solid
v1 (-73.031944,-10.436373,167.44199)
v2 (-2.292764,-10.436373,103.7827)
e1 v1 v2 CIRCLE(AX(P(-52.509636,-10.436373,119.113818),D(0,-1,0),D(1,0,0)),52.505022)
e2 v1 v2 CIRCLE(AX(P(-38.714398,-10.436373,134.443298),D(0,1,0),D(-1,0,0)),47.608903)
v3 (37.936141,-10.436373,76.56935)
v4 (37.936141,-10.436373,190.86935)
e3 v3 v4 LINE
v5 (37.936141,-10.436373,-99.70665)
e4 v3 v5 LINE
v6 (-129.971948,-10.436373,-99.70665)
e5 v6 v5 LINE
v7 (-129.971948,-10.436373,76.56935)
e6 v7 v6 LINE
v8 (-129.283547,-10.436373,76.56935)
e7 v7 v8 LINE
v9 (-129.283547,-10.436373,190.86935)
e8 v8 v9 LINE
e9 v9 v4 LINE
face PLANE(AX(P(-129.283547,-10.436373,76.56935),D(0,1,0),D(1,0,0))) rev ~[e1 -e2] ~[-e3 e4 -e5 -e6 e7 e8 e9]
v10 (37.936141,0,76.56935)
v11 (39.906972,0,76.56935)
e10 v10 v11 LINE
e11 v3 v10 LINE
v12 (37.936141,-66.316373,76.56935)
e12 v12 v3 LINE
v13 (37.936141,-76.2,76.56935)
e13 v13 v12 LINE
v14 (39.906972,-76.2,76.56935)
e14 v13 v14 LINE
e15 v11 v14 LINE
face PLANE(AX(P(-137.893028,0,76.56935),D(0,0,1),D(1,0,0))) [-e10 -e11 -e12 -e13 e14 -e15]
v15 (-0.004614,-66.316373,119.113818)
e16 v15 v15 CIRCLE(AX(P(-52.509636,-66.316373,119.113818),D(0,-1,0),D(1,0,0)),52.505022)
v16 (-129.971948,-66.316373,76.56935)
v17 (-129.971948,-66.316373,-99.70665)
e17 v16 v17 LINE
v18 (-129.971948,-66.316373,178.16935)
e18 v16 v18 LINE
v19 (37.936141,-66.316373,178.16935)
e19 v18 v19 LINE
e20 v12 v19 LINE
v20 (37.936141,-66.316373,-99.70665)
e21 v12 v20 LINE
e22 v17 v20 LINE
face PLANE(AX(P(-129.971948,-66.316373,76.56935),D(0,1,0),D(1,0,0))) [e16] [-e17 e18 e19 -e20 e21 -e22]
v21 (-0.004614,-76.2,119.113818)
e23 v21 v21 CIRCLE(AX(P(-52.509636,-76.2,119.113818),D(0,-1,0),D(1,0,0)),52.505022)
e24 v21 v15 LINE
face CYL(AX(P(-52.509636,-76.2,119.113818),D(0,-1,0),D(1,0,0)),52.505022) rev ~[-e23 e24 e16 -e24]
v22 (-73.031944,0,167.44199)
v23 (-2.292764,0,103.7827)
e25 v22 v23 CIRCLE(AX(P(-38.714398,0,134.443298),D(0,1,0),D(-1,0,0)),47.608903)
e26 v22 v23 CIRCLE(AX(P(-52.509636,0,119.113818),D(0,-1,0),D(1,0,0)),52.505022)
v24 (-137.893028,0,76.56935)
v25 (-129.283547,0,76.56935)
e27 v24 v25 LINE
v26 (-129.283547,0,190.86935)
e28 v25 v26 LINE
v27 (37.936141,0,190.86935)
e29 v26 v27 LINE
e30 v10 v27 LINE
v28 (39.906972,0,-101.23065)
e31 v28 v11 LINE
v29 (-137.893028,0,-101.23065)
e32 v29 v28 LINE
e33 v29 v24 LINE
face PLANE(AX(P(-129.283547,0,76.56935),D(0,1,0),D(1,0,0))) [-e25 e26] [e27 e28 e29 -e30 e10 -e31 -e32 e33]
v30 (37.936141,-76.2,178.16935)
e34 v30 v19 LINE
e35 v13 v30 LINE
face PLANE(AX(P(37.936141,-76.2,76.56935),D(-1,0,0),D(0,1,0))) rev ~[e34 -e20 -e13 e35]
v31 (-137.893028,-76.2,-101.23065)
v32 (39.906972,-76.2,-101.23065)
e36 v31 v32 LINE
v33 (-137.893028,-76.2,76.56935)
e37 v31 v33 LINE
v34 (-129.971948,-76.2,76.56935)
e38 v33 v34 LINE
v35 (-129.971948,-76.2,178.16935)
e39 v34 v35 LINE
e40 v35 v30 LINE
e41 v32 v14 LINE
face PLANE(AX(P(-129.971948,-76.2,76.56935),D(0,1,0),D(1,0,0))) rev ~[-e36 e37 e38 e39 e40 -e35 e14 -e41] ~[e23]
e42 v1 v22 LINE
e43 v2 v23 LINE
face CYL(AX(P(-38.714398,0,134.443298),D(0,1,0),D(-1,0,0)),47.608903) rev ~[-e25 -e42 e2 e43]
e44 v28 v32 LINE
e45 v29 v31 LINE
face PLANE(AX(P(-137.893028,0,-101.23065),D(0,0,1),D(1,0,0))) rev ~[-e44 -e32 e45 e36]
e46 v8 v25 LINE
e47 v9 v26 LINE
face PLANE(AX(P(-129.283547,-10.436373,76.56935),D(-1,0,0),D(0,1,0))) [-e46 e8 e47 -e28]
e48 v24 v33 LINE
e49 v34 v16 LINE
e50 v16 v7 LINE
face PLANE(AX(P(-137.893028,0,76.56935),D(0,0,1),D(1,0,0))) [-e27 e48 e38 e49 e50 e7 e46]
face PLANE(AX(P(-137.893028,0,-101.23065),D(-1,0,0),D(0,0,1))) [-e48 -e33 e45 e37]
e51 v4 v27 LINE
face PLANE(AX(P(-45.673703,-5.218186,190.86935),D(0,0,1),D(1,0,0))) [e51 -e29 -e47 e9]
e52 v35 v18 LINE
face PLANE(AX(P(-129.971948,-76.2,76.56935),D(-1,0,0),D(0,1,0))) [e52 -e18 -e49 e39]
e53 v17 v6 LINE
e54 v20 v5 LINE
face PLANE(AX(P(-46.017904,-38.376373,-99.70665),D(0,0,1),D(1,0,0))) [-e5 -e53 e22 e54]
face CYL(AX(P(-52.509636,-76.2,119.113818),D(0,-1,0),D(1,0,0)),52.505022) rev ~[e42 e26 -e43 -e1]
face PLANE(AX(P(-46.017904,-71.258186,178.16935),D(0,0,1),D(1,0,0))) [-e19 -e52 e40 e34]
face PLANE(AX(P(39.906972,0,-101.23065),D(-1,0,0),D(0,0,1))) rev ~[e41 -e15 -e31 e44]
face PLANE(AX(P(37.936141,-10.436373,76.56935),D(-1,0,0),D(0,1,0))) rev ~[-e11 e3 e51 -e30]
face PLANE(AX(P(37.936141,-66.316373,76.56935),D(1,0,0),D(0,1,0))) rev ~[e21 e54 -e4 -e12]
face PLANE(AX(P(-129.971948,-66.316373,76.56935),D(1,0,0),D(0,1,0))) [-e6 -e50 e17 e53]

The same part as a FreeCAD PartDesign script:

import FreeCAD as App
import Part
import Sketcher

V = App.Vector
Q = App.Units.Quantity

doc = App.newDocument("Part")
body = doc.addObject("PartDesign::Body", "Body")

# Sketch on XZ plane
sketch1 = doc.addObject("Sketcher::SketchObject", "Sketch")
body.addObject(sketch1)
sketch1.AttachmentSupport = (doc.XZ_Plane, [""])
sketch1.MapMode = "FlatFace"
sketch1.addGeometry([
    Part.LineSegment(V(-137.893028, 76.56935, 0), V(-137.893028, -101.23065, 0)),
    Part.LineSegment(V(-137.893028, -101.23065, 0), V(39.906972, -101.23065, 0)),
    Part.LineSegment(V(39.906972, -101.23065, 0), V(39.906972, 76.56935, 0)),
    Part.LineSegment(V(39.906972, 76.56935, 0), V(-137.893028, 76.56935, 0)),
], False)
sketch1.addConstraint([
    Sketcher.Constraint("Coincident", 0, 2, 1, 1),
    Sketcher.Constraint("Coincident", 1, 2, 2, 1),
    Sketcher.Constraint("Coincident", 2, 2, 3, 1),
    Sketcher.Constraint("Coincident", 3, 2, 0, 1),
    Sketcher.Constraint("Vertical", 0),
    Sketcher.Constraint("Horizontal", 1),
    Sketcher.Constraint("Vertical", 2),
    Sketcher.Constraint("Horizontal", 3),
    Sketcher.Constraint("Equal", 3, 0),
    Sketcher.Constraint("DistanceX", 1, 1, 1, 2, Q("7 in")),
    Sketcher.Constraint("DistanceX", 0, 2, -1, 1, Q("137.893028 mm")),
    Sketcher.Constraint("DistanceY", 0, 2, -1, 1, Q("101.23065 mm")),
])
pad1 = doc.addObject("PartDesign::Pad", "Pad")
body.addObject(pad1)
pad1.Profile = sketch1
pad1.Length = Q("3 in")

# Sketch on XY plane
sketch2 = doc.addObject("Sketcher::SketchObject", "Sketch001")
body.addObject(sketch2)
sketch2.AttachmentSupport = (doc.XY_Plane, [""])
sketch2.MapMode = "FlatFace"
sketch2.AttachmentOffset = App.Placement(V(0, 0, 76.56935), App.Rotation())
sketch2.addGeometry([
    Part.LineSegment(V(-129.971948, -10.436373, 0), V(-129.971948, -66.316373, 0)),
    Part.LineSegment(V(-129.971948, -66.316373, 0), V(37.936141, -66.316373, 0)),
    Part.LineSegment(V(37.936141, -66.316373, 0), V(37.936141, -10.436373, 0)),
    Part.LineSegment(V(37.936141, -10.436373, 0), V(-129.971948, -10.436373, 0)),
], False)
sketch2.addConstraint([
    Sketcher.Constraint("Coincident", 0, 2, 1, 1),
    Sketcher.Constraint("Coincident", 1, 2, 2, 1),
    Sketcher.Constraint("Coincident", 2, 2, 3, 1),
    Sketcher.Constraint("Coincident", 3, 2, 0, 1),
    Sketcher.Constraint("Vertical", 0),
    Sketcher.Constraint("Horizontal", 1),
    Sketcher.Constraint("Vertical", 2),
    Sketcher.Constraint("Horizontal", 3),
    Sketcher.Constraint("DistanceY", 0, 2, 0, 1, Q("2.2 in")),
    Sketcher.Constraint("DistanceX", 1, 1, 1, 2, Q("167.908089 mm")),
    Sketcher.Constraint("DistanceX", 0, 2, -1, 1, Q("129.971948 mm")),
    Sketcher.Constraint("DistanceY", 0, 2, -1, 1, Q("66.316373 mm")),
])
pocket1 = doc.addObject("PartDesign::Pocket", "Pocket")
body.addObject(pocket1)
pocket1.Profile = sketch2
pocket1.Length = Q("6.94 in")

# Sketch on XY plane
sketch3 = doc.addObject("Sketcher::SketchObject", "Sketch002")
body.addObject(sketch3)
sketch3.AttachmentSupport = (doc.XY_Plane, [""])
sketch3.MapMode = "FlatFace"
sketch3.AttachmentOffset = App.Placement(V(0, 0, 76.56935), App.Rotation())
sketch3.addGeometry([
    Part.LineSegment(V(-129.971948, -66.316373, 0), V(-129.971948, -76.2, 0)),
    Part.LineSegment(V(-129.971948, -76.2, 0), V(37.936141, -76.2, 0)),
    Part.LineSegment(V(37.936141, -76.2, 0), V(37.936141, -66.316373, 0)),
    Part.LineSegment(V(37.936141, -66.316373, 0), V(-129.971948, -66.316373, 0)),
], False)
sketch3.addConstraint([
    Sketcher.Constraint("Coincident", 0, 2, 1, 1),
    Sketcher.Constraint("Coincident", 1, 2, 2, 1),
    Sketcher.Constraint("Coincident", 2, 2, 3, 1),
    Sketcher.Constraint("Coincident", 3, 2, 0, 1),
    Sketcher.Constraint("Vertical", 0),
    Sketcher.Constraint("Horizontal", 1),
    Sketcher.Constraint("Vertical", 2),
    Sketcher.Constraint("Horizontal", 3),
    Sketcher.Constraint("DistanceY", 0, 2, -1, 1, Q("3 in")),
    Sketcher.Constraint("DistanceX", 1, 1, 1, 2, Q("167.908089 mm")),
    Sketcher.Constraint("DistanceY", 0, 2, 0, 1, Q("9.883627 mm")),
    Sketcher.Constraint("DistanceX", 0, 2, -1, 1, Q("129.971948 mm")),
])
pad2 = doc.addObject("PartDesign::Pad", "Pad001")
body.addObject(pad2)
pad2.Profile = sketch3
pad2.Length = Q("4 in")

# Sketch on XY plane
sketch4 = doc.addObject("Sketcher::SketchObject", "Sketch003")
body.addObject(sketch4)
sketch4.AttachmentSupport = (doc.XY_Plane, [""])
sketch4.MapMode = "FlatFace"
sketch4.AttachmentOffset = App.Placement(V(0, 0, 76.56935), App.Rotation())
sketch4.addGeometry([
    Part.LineSegment(V(-129.283547, 0, 0), V(-129.283547, -10.436373, 0)),
    Part.LineSegment(V(-129.283547, -10.436373, 0), V(37.936141, -10.436373, 0)),
    Part.LineSegment(V(37.936141, -10.436373, 0), V(37.936141, 0, 0)),
    Part.LineSegment(V(37.936141, 0, 0), V(-129.283547, 0, 0)),
], False)
sketch4.addConstraint([
    Sketcher.Constraint("Coincident", 0, 2, 1, 1),
    Sketcher.Constraint("Coincident", 1, 2, 2, 1),
    Sketcher.Constraint("Coincident", 2, 2, 3, 1),
    Sketcher.Constraint("Coincident", 3, 2, 0, 1),
    Sketcher.Constraint("Vertical", 0),
    Sketcher.Constraint("Horizontal", 1),
    Sketcher.Constraint("Vertical", 2),
    Sketcher.Constraint("Horizontal", 3),
    Sketcher.Constraint("PointOnObject", 2, 2, -1),
    Sketcher.Constraint("DistanceX", 1, 1, 1, 2, Q("167.219688 mm")),
    Sketcher.Constraint("DistanceY", 0, 2, 0, 1, Q("10.436373 mm")),
    Sketcher.Constraint("DistanceX", -1, 1, 1, 2, Q("37.936141 mm")),
])
pad3 = doc.addObject("PartDesign::Pad", "Pad002")
body.addObject(pad3)
pad3.Profile = sketch4
pad3.Length = Q("4.5 in")

# Sketch on XZ plane
sketch5 = doc.addObject("Sketcher::SketchObject", "Sketch004")
body.addObject(sketch5)
sketch5.AttachmentSupport = (doc.XZ_Plane, [""])
sketch5.MapMode = "FlatFace"
sketch5.addGeometry(Part.Circle(V(-38.714398, 134.443298, 0), V(0, 0, 1), 47.608903), False)
sketch5.addConstraint([
    Sketcher.Constraint("Diameter", 0, Q("95.217806 mm")),
    Sketcher.Constraint("DistanceX", 0, 3, -1, 1, Q("38.714398 mm")),
    Sketcher.Constraint("DistanceY", -1, 1, 0, 3, Q("134.443298 mm")),
])
pocket2 = doc.addObject("PartDesign::Pocket", "Pocket001")
body.addObject(pocket2)
pocket2.Profile = sketch5
pocket2.Length = Q("1.65 in")
pocket2.Reversed = True

# Sketch on XZ plane
sketch6 = doc.addObject("Sketcher::SketchObject", "Sketch005")
body.addObject(sketch6)
sketch6.AttachmentSupport = (doc.XZ_Plane, [""])
sketch6.MapMode = "FlatFace"
sketch6.AttachmentOffset = App.Placement(V(0, 0, 3 * 25.4), App.Rotation())
sketch6.addGeometry(Part.Circle(V(-52.509636, 119.113818, 0), V(0, 0, 1), 52.505022), False)
sketch6.addConstraint([
    Sketcher.Constraint("Diameter", 0, Q("105.010044 mm")),
    Sketcher.Constraint("DistanceX", 0, 3, -1, 1, Q("52.509636 mm")),
    Sketcher.Constraint("DistanceY", -1, 1, 0, 3, Q("119.113818 mm")),
])
pocket3 = doc.addObject("PartDesign::Pocket", "Pocket002")
body.addObject(pocket3)
pocket3.Profile = sketch6
pocket3.Length = Q("6.26 in")

doc.recompute()
